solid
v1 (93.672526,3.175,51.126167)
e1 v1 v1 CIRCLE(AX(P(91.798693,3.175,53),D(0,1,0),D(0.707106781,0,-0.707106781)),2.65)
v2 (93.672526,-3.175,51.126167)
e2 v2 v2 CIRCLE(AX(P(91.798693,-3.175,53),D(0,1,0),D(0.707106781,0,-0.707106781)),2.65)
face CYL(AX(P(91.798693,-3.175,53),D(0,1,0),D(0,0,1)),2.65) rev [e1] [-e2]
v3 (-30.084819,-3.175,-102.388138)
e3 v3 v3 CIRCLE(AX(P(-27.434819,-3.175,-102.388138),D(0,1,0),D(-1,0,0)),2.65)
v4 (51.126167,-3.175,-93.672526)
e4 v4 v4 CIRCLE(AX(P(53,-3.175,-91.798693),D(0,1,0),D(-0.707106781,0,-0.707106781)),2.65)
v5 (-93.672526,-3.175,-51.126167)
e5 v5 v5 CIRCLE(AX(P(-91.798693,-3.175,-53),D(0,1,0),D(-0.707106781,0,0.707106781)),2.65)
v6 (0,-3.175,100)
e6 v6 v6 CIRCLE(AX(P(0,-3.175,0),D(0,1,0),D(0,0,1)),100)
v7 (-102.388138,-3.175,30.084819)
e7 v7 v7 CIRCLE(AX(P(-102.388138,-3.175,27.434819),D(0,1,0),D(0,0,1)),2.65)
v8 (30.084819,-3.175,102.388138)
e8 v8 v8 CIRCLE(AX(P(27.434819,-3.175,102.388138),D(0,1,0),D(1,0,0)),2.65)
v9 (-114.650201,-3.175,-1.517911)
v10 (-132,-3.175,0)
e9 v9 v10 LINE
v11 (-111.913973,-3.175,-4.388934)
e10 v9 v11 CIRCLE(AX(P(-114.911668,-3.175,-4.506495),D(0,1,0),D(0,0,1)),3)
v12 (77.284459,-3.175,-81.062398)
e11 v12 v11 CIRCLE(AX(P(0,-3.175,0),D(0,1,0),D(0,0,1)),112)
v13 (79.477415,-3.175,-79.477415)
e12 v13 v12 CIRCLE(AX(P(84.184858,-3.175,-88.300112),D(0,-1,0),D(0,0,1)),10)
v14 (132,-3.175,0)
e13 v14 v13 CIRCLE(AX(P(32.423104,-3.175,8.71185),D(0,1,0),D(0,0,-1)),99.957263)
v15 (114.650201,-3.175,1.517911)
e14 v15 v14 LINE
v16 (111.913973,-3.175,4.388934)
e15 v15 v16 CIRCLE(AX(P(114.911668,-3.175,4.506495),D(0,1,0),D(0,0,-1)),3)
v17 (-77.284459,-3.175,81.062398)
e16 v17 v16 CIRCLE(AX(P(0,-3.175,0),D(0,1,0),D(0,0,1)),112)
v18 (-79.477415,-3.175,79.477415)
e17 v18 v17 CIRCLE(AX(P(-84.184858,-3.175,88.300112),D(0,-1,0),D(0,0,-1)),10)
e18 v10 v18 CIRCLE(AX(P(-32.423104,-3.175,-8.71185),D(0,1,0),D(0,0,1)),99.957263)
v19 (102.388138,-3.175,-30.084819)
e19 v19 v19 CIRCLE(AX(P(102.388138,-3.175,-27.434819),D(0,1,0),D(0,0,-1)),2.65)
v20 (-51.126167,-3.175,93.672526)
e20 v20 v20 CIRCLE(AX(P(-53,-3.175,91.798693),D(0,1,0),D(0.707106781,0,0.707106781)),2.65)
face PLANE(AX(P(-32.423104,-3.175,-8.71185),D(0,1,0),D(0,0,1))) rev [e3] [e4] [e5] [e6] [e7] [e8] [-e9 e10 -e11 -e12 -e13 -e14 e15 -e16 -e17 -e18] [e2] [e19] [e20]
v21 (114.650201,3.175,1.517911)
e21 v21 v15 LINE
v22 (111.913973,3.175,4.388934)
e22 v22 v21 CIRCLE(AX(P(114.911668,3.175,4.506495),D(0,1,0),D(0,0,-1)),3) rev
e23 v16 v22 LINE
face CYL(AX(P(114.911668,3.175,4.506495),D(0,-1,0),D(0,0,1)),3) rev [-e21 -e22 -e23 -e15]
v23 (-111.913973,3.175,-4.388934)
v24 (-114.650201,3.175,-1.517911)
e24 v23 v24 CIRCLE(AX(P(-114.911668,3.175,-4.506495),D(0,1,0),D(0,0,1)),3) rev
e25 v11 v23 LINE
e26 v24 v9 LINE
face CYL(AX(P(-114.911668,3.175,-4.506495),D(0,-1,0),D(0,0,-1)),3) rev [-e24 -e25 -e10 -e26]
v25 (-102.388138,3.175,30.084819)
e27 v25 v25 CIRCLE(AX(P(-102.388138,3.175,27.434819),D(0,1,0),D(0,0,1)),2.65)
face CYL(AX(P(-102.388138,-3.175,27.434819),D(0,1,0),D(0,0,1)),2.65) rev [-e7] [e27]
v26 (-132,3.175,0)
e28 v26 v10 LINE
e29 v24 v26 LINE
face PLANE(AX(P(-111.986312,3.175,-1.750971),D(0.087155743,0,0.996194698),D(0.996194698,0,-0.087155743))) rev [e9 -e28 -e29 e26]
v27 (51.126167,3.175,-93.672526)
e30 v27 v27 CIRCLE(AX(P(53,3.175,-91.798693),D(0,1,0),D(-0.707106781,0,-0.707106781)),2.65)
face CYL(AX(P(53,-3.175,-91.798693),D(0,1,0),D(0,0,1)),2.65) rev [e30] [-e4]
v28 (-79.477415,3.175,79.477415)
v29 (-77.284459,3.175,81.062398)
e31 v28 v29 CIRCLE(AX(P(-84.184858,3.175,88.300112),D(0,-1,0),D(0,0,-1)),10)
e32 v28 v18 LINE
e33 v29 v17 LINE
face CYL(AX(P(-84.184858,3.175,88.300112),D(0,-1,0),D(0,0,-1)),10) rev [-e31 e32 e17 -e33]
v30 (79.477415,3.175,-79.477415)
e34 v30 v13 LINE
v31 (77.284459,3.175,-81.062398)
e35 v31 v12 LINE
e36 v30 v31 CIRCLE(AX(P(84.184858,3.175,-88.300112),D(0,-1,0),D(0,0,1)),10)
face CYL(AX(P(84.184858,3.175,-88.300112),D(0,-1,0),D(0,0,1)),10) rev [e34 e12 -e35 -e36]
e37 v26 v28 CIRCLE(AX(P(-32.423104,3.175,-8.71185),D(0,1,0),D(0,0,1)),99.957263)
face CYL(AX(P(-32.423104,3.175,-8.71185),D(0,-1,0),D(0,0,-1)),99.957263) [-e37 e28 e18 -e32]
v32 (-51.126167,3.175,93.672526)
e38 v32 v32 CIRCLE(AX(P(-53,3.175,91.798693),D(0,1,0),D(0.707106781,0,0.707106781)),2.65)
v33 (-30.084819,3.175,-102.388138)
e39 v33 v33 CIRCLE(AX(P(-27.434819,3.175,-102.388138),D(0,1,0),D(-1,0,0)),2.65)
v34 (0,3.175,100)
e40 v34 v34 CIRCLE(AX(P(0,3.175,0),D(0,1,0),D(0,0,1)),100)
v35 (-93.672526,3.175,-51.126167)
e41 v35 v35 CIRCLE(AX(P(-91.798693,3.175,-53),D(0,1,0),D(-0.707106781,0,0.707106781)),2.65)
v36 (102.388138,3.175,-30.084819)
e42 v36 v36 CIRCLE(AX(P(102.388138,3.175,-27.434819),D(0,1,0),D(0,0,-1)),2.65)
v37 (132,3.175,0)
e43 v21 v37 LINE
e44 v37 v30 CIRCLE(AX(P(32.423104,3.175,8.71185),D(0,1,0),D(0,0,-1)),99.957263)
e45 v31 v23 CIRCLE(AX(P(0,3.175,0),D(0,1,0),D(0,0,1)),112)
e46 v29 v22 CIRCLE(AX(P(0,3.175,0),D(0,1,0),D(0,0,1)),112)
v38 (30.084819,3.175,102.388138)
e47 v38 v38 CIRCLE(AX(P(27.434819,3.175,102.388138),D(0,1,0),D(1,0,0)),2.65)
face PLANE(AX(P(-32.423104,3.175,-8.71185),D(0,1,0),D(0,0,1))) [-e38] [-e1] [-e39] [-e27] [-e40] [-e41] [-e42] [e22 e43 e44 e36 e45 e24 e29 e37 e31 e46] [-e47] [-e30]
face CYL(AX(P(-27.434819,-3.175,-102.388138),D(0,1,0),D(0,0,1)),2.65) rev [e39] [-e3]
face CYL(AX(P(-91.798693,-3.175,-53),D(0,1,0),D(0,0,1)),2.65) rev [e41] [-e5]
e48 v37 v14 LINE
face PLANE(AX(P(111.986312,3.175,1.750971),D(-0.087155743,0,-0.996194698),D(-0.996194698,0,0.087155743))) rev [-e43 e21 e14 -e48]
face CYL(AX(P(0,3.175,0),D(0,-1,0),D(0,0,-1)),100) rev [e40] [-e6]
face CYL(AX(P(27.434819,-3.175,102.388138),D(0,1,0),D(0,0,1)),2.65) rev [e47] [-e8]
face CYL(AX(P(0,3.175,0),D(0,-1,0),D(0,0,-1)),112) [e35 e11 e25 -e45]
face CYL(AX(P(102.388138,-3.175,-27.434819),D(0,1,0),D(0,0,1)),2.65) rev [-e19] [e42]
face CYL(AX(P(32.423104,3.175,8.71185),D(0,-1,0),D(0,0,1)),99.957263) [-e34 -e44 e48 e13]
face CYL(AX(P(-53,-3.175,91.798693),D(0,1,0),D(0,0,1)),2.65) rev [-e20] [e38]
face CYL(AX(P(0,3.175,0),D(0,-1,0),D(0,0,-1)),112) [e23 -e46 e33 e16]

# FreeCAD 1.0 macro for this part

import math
import FreeCAD as App
import Part
import Sketcher
from FreeCAD import Vector
Q = App.Units.Quantity


def edges_at(feature, points):
    """Names of the edges that pass closest to the given points."""
    edges = feature.Shape.Edges
    near = lambda p: min(range(len(edges)), key=lambda i: edges[i].distToShape(Part.Vertex(*p))[0])
    return sorted({f"Edge{near(p) + 1}" for p in points})

doc = App.newDocument("Part")
body = doc.addObject("PartDesign::Body", "Body")

# Sketch on XZ plane
sketch1 = doc.addObject("Sketcher::SketchObject", "Sketch")
body.addObject(sketch1)
sketch1.AttachmentSupport = (doc.XZ_Plane, [""])
sketch1.MapMode = "FlatFace"
sketch1.addGeometry(Part.LineSegment(Vector(-112, -1.8, 0), Vector(-132, 0, 0)), False)
sketch1.addGeometry(Part.ArcOfCircle(Part.Circle(Vector(-32.4, -8.7, 0), Vector(0, 0, 1), 100), math.radians(118), math.radians(175)), False)
sketch1.addGeometry(Part.ArcOfCircle(Part.Circle(Vector(-84.2, 88.3, 0), Vector(0, 0, 1), 10), math.radians(-61.92), math.radians(-46.37)), False)
sketch1.addGeometry(Part.ArcOfCircle(Part.Circle(Vector(0, 0, 0), Vector(0, 0, 1), 112), math.radians(-179), math.radians(134)), False)
sketch1.addGeometry(Part.Circle(Vector(0, 0, 0), Vector(0, 0, 1), 100), False)
sketch1.addConstraint(Sketcher.Constraint("Coincident", 0, 2, 1, 2))
sketch1.addConstraint(Sketcher.Constraint("Tangent", 1, 1, 2, 1))
sketch1.addConstraint(Sketcher.Constraint("Tangent", 2, 2, 3, 2))
sketch1.addConstraint(Sketcher.Constraint("Coincident", 3, 1, 0, 1))
sketch1.addConstraint(Sketcher.Constraint("Coincident", 3, 3, -1, 1))
sketch1.addConstraint(Sketcher.Constraint("Coincident", 4, 3, -1, 1))
sketch1.addConstraint(Sketcher.Constraint("PointOnObject", 0, 2, -1))
sketch1.addConstraint(Sketcher.Constraint("Diameter", 4, 200.0))
sketch1.addConstraint(Sketcher.Constraint("Radius", 2, 10.0))
sketch1.addConstraint(Sketcher.Constraint("Radius", 3, 112.0))
sketch1.addConstraint(Sketcher.Constraint("Angle", 0, Q("175 deg")))
sketch1.addConstraint(Sketcher.Constraint("DistanceX", 0, 2, -1, 1, 132.0))
sketch1.addConstraint(Sketcher.Constraint("Radius", 1, 99.957263))
sketch1.addConstraint(Sketcher.Constraint("DistanceX", 2, 3, 2, 2, 6.900398))
pad1 = doc.addObject("PartDesign::Pad", "Pad")
body.addObject(pad1)
pad1.Profile = sketch1
pad1.Length = 6.35
pad1.Midplane = True
doc.recompute()

fillet = doc.addObject("PartDesign::Fillet", "Fillet")
body.addObject(fillet)
fillet.Base = (pad1, edges_at(pad1, [(-111.986, 0, -1.751)]))
fillet.Radius = 3
doc.recompute()

polarpattern = doc.addObject("PartDesign::PolarPattern", "PolarPattern")
body.addObject(polarpattern)
polarpattern.Originals = [pad1]
polarpattern.Axis = (doc.Y_Axis, [""])
polarpattern.Angle = 360
polarpattern.Occurrences = 2
body.Tip = polarpattern
doc.recompute()

fillet2 = doc.addObject("PartDesign::Fillet", "Fillet001")
body.addObject(fillet2)
fillet2.Base = (polarpattern, edges_at(polarpattern, [(111.986, 0, 1.751)]))
fillet2.Radius = 3

# Sketch on XZ plane
sketch2 = doc.addObject("Sketcher::SketchObject", "Sketch001")
body.addObject(sketch2)
sketch2.AttachmentSupport = (doc.XZ_Plane, [""])
sketch2.MapMode = "FlatFace"
sketch2.AttachmentOffset = App.Placement(Vector(0, 0, -3.175), App.Rotation())
sketch2.addGeometry(Part.Circle(Vector(-102.4, 27.4, 0), Vector(0, 0, 1), 2.6), False)
sketch2.addConstraint(Sketcher.Constraint("Diameter", 0, 5.3))
sketch2.addConstraint(Sketcher.Constraint("DistanceY", -1, 1, 0, 3, 27.434819))
sketch2.addConstraint(Sketcher.Constraint("DistanceX", 0, 3, -1, 1, 102.388138))
pocket1 = doc.addObject("PartDesign::Pocket", "Pocket")
body.addObject(pocket1)
pocket1.Profile = sketch2
pocket1.Type = "ThroughAll"
pocket1.Reversed = True
doc.recompute()

polarpattern2 = doc.addObject("PartDesign::PolarPattern", "PolarPattern001")
body.addObject(polarpattern2)
polarpattern2.Originals = [pocket1]
polarpattern2.Axis = (doc.Y_Axis, [""])
polarpattern2.Angle = 360
polarpattern2.Occurrences = 8
body.Tip = polarpattern2

doc.recompute()
